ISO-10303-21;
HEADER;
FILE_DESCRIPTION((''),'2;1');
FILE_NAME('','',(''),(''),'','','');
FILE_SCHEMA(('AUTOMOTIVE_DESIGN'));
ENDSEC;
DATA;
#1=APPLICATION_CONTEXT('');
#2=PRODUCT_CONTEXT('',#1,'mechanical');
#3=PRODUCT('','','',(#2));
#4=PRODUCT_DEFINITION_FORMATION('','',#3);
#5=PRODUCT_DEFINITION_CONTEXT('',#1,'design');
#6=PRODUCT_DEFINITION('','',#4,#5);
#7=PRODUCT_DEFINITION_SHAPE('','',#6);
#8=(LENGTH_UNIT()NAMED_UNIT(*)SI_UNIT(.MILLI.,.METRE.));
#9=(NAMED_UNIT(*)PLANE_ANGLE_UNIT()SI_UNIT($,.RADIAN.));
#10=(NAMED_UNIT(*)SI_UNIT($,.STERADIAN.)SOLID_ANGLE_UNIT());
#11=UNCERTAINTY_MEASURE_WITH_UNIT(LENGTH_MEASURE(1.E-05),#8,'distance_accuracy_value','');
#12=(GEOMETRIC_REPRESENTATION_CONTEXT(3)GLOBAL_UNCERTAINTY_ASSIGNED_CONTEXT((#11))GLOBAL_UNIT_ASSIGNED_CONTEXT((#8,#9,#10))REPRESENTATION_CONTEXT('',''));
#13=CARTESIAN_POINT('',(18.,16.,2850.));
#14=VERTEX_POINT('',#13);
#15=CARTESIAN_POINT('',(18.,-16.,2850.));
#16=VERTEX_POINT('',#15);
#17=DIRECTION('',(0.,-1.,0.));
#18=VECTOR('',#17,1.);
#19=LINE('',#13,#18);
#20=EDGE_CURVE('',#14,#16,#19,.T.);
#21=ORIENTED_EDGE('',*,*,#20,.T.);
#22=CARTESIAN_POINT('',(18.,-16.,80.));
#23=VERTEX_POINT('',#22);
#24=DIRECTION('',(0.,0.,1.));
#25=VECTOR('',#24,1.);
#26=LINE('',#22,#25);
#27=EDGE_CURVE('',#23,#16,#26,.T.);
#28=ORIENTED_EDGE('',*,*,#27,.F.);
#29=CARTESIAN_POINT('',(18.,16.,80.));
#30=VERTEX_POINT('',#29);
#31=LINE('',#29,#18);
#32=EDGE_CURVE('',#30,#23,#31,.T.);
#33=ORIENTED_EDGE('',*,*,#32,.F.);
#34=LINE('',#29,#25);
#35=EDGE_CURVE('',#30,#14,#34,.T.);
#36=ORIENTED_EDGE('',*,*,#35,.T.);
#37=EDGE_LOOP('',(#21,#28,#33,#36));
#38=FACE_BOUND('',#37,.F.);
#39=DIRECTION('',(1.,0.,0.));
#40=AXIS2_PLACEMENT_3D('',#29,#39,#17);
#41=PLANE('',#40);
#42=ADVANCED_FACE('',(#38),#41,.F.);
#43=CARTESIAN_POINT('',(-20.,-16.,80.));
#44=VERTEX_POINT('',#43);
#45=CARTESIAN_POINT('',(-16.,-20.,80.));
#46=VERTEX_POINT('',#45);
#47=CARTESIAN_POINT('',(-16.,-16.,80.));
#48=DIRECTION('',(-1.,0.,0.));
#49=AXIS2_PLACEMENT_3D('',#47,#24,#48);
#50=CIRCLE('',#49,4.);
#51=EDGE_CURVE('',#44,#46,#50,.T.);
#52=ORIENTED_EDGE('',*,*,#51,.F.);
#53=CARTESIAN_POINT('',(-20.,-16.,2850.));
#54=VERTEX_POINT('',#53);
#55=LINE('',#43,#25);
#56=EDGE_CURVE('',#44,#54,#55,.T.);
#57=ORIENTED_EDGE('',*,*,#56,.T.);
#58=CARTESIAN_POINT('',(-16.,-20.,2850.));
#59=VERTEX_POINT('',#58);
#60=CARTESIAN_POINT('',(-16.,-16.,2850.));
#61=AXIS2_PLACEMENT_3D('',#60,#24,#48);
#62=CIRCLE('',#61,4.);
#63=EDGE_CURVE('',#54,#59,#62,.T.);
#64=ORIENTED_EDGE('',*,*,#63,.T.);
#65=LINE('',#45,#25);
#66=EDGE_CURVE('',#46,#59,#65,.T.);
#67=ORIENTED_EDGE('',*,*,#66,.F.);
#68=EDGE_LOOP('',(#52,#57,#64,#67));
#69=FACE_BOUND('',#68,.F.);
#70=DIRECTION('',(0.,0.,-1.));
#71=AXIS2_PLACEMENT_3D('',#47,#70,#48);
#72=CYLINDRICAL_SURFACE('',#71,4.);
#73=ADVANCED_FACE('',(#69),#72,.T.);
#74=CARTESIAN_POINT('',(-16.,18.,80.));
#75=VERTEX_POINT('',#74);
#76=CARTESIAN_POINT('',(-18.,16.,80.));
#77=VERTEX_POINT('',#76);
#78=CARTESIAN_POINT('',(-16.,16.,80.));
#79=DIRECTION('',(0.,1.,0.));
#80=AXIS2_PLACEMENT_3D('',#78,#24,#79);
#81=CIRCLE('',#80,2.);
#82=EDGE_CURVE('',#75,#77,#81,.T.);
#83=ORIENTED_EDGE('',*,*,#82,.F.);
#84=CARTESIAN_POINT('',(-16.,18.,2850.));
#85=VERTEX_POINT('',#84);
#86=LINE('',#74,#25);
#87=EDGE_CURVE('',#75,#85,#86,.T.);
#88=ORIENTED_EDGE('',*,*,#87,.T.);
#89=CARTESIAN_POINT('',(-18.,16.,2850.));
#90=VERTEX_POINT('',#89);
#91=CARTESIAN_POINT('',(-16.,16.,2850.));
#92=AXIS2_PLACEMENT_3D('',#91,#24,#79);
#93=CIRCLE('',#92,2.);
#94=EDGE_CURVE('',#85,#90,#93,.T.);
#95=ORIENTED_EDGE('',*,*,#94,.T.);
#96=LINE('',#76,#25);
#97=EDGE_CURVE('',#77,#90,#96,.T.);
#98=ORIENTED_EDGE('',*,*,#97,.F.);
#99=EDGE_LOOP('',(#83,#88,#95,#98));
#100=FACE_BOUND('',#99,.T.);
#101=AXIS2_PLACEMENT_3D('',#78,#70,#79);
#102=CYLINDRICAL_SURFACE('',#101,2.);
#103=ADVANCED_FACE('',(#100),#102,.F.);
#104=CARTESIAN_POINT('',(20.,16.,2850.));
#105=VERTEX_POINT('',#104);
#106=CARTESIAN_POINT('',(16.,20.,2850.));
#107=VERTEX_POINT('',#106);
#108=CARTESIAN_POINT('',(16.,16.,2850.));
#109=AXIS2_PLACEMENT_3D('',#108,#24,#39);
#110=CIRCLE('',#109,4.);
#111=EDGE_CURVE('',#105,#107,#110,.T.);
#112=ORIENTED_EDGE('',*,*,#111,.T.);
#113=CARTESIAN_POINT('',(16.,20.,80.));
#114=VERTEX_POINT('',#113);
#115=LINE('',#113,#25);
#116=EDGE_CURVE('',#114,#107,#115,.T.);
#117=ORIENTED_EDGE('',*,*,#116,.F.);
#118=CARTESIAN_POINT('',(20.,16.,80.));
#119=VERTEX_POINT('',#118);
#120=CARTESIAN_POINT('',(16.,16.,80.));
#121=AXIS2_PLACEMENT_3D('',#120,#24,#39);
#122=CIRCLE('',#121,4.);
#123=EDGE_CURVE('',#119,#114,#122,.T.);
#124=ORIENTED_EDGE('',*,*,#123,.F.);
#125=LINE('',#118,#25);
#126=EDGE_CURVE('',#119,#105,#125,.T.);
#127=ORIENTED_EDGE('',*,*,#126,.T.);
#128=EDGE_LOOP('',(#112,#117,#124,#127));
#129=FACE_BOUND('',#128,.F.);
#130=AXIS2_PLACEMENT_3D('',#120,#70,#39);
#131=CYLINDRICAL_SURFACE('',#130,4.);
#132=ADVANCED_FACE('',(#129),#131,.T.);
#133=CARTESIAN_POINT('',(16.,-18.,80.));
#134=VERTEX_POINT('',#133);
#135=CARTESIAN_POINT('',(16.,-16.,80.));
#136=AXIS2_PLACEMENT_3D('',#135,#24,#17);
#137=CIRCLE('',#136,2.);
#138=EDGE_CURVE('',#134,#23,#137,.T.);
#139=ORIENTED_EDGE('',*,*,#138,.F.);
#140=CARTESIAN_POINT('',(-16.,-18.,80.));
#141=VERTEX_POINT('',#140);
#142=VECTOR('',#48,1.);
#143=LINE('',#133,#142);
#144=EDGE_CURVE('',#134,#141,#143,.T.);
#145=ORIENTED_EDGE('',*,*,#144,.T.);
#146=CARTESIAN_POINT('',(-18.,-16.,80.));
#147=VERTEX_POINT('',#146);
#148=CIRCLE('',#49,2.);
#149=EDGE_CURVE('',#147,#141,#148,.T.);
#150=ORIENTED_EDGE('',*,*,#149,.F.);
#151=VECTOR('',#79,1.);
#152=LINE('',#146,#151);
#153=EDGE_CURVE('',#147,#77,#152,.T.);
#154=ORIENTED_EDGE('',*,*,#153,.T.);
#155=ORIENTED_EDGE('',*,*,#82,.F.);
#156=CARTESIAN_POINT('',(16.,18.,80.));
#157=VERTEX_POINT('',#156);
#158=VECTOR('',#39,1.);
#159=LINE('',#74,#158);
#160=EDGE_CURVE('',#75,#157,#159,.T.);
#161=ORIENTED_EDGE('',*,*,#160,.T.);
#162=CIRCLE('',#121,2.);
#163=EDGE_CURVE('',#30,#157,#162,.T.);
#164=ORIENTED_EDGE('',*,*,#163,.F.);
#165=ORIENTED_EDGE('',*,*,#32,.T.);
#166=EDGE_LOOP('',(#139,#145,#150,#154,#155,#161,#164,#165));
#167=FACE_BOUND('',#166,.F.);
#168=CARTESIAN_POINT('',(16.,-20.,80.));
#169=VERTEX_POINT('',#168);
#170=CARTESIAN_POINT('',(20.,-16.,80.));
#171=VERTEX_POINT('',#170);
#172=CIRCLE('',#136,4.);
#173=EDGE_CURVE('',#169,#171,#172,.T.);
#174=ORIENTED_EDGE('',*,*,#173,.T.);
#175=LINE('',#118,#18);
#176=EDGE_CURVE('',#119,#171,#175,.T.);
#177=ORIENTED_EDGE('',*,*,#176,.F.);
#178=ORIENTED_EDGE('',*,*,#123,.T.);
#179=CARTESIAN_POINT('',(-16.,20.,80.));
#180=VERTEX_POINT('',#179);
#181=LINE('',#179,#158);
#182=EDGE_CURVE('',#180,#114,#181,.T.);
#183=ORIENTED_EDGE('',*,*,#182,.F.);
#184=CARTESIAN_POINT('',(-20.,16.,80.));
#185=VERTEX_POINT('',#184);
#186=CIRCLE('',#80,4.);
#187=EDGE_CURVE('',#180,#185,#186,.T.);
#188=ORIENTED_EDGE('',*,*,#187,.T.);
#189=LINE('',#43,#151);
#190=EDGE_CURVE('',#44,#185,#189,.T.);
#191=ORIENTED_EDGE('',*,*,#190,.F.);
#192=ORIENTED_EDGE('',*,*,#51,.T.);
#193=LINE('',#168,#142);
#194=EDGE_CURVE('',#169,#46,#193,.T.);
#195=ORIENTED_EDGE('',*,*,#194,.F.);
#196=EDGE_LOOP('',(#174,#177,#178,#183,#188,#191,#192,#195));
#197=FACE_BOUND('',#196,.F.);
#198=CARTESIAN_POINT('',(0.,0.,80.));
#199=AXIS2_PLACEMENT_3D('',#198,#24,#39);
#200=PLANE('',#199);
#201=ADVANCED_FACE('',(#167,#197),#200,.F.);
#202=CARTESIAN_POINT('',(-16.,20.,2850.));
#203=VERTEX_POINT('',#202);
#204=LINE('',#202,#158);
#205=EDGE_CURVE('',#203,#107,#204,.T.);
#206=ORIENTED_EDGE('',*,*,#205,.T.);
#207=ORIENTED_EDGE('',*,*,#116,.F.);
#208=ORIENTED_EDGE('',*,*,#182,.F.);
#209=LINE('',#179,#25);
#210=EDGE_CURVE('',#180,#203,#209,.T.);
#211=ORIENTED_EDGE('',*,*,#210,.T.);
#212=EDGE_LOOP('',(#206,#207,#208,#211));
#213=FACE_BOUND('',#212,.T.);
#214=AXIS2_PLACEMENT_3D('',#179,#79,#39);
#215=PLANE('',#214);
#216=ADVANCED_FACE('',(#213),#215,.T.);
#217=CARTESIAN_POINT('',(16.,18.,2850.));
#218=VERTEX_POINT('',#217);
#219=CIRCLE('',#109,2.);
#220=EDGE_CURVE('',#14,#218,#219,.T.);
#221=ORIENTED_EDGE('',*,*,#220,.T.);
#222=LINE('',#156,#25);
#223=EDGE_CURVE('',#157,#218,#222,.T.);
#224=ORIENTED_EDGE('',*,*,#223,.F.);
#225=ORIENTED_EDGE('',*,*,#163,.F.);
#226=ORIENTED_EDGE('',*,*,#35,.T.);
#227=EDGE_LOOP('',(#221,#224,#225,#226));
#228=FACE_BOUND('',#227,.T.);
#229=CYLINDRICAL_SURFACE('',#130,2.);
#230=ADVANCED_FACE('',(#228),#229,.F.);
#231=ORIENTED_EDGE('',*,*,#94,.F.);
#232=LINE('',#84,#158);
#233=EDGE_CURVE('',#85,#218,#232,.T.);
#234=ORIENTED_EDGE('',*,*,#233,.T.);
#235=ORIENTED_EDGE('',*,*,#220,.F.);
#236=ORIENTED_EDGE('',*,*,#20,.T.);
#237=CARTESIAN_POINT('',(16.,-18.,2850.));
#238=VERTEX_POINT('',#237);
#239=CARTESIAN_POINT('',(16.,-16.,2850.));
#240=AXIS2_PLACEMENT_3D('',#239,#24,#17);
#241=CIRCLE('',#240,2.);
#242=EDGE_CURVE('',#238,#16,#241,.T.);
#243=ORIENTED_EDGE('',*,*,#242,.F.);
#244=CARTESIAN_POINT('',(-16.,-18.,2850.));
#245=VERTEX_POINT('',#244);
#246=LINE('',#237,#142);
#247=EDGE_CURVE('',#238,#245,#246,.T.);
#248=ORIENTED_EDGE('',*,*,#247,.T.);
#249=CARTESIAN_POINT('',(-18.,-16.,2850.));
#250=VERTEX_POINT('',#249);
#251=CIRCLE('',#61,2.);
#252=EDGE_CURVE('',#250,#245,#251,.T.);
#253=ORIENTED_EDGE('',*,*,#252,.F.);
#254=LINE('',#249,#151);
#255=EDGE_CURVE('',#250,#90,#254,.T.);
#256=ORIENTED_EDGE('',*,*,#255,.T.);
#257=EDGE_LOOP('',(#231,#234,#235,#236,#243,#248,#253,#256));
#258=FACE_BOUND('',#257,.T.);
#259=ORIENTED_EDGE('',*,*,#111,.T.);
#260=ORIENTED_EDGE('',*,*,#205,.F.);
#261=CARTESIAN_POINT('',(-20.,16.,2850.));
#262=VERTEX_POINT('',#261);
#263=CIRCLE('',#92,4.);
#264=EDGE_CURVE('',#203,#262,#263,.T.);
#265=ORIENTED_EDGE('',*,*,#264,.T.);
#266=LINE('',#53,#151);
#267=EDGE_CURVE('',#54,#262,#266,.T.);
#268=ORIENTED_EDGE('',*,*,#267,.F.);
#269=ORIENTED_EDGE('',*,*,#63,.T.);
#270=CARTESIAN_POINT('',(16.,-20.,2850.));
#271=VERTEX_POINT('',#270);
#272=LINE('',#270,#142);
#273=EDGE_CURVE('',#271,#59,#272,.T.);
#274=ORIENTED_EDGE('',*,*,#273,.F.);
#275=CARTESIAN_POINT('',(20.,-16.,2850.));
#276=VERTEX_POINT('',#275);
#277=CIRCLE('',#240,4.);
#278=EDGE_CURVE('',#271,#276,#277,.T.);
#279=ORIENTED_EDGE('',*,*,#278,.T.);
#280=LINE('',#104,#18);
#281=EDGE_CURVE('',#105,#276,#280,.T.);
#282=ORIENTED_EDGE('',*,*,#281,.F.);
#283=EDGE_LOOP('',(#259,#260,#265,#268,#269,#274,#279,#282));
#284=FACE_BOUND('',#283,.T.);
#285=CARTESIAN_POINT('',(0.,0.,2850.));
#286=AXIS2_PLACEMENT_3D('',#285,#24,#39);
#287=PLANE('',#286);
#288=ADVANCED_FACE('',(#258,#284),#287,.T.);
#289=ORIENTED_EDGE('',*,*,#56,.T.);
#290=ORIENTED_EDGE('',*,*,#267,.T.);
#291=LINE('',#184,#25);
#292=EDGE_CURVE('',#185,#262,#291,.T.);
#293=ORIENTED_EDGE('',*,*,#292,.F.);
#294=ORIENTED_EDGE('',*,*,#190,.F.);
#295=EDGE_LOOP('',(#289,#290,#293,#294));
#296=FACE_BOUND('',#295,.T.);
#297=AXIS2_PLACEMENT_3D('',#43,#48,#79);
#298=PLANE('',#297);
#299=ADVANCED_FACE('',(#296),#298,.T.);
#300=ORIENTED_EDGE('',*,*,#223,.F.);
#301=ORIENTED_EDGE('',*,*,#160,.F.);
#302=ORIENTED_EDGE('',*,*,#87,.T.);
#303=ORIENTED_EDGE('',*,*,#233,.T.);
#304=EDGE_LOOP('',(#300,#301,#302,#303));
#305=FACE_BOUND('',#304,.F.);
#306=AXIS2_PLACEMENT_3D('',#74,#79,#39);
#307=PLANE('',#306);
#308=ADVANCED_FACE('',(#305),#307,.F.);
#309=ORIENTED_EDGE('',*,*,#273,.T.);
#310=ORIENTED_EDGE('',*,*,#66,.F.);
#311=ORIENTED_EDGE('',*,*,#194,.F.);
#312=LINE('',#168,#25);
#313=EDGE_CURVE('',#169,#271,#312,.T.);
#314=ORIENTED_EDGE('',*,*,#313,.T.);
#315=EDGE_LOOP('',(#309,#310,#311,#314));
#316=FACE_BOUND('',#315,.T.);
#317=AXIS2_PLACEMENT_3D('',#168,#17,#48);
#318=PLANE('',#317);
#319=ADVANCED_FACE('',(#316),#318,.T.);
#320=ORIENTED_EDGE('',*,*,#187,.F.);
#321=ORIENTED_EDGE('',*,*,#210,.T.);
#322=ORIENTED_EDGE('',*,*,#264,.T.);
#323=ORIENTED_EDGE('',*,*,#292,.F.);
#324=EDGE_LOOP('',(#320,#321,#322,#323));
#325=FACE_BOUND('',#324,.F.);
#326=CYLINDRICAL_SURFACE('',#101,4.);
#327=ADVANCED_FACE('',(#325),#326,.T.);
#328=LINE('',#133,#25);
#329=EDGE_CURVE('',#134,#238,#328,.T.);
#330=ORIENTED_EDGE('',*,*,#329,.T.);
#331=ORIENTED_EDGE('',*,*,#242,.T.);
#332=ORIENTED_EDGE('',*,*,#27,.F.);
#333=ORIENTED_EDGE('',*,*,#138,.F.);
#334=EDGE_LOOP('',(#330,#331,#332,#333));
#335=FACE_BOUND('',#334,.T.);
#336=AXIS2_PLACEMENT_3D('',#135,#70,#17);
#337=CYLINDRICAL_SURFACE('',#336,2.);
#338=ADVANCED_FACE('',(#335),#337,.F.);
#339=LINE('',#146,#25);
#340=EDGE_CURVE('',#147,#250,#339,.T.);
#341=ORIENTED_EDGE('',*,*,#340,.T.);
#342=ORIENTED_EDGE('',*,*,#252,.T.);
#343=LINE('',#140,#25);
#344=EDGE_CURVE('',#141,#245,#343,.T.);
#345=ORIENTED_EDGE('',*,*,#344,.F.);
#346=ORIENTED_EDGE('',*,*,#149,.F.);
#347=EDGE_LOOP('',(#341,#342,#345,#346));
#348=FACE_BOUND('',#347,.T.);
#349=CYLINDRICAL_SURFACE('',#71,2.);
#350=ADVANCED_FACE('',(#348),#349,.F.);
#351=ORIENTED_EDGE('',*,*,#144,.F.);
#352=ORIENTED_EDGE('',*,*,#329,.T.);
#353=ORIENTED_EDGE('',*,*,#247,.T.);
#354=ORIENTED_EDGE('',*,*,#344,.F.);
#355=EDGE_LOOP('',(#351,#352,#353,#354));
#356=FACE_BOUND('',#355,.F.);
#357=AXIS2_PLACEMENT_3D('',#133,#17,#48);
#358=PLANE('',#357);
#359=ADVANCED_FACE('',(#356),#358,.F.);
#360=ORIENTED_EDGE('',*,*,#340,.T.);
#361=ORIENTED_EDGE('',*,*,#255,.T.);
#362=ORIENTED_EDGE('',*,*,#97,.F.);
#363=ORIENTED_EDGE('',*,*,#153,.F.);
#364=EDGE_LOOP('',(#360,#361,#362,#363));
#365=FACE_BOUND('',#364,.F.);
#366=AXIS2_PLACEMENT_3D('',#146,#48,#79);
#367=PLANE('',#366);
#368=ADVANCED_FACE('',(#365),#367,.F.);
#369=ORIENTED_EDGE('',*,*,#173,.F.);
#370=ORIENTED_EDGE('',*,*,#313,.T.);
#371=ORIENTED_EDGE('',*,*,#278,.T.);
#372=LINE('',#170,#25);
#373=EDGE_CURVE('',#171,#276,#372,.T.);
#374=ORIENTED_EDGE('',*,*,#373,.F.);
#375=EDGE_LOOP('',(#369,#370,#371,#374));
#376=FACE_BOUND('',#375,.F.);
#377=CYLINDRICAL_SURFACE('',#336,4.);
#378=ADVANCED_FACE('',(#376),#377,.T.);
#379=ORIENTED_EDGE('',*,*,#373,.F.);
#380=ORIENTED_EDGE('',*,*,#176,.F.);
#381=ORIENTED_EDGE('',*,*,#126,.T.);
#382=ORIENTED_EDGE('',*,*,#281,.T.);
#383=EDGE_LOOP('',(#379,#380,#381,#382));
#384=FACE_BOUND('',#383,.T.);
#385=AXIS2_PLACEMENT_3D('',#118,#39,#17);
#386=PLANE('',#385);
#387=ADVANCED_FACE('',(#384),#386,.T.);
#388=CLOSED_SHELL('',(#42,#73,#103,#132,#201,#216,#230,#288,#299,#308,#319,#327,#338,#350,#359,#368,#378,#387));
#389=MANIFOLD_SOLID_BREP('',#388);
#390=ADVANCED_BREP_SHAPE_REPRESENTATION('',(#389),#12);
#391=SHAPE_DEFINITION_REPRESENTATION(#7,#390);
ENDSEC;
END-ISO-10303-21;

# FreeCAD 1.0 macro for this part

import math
import FreeCAD as App
import Part
import Sketcher

V = App.Vector

doc = App.newDocument("Part")
body = doc.addObject("PartDesign::Body", "Body")

sketch1 = body.newObject("Sketcher::SketchObject", "Sketch")
sketch1.AttachmentSupport = (doc.getObject("XY_Plane"), [""])
sketch1.MapMode = "FlatFace"
sketch1.AttachmentOffset = App.Placement(V(0, 0, 80), App.Rotation())
sketch1.addGeometry([
    Part.LineSegment(V(-20, 16, 0), V(-20, -16, 0)),
    Part.ArcOfCircle(Part.Circle(V(-16, -16, 0), V(0, 0, 1), 4), math.radians(180), math.radians(270)),
    Part.LineSegment(V(-16, -20, 0), V(16, -20, 0)),
    Part.ArcOfCircle(Part.Circle(V(16, -16, 0), V(0, 0, 1), 4), math.radians(-90), math.radians(0)),
    Part.LineSegment(V(20, -16, 0), V(20, 16, 0)),
    Part.ArcOfCircle(Part.Circle(V(16, 16, 0), V(0, 0, 1), 4), math.radians(0), math.radians(90)),
    Part.LineSegment(V(16, 20, 0), V(-16, 20, 0)),
    Part.ArcOfCircle(Part.Circle(V(-16, 16, 0), V(0, 0, 1), 4), math.radians(90), math.radians(180)),
    Part.ArcOfCircle(Part.Circle(V(-16, 16, 0), V(0, 0, 1), 2), math.radians(90), math.radians(180)),
    Part.LineSegment(V(-16, 18, 0), V(16, 18, 0)),
    Part.ArcOfCircle(Part.Circle(V(16, 16, 0), V(0, 0, 1), 2), math.radians(0), math.radians(90)),
    Part.LineSegment(V(18, 16, 0), V(18, -16, 0)),
    Part.ArcOfCircle(Part.Circle(V(16, -16, 0), V(0, 0, 1), 2), math.radians(-90), math.radians(0)),
    Part.LineSegment(V(16, -18, 0), V(-16, -18, 0)),
    Part.ArcOfCircle(Part.Circle(V(-16, -16, 0), V(0, 0, 1), 2), math.radians(180), math.radians(270)),
    Part.LineSegment(V(-18, -16, 0), V(-18, 16, 0)),
], False)
sketch1.addConstraint([
    Sketcher.Constraint("Tangent", 0, 2, 1, 1),
    Sketcher.Constraint("Tangent", 1, 2, 2, 1),
    Sketcher.Constraint("Tangent", 2, 2, 3, 1),
    Sketcher.Constraint("Tangent", 3, 2, 4, 1),
    Sketcher.Constraint("Tangent", 4, 2, 5, 1),
    Sketcher.Constraint("Tangent", 5, 2, 6, 1),
    Sketcher.Constraint("Tangent", 6, 2, 7, 1),
    Sketcher.Constraint("Tangent", 7, 2, 0, 1),
    Sketcher.Constraint("Tangent", 8, 1, 9, 1),
    Sketcher.Constraint("Tangent", 9, 2, 10, 2),
    Sketcher.Constraint("Tangent", 10, 1, 11, 1),
    Sketcher.Constraint("Tangent", 11, 2, 12, 2),
    Sketcher.Constraint("Tangent", 12, 1, 13, 1),
    Sketcher.Constraint("Tangent", 13, 2, 14, 2),
    Sketcher.Constraint("Tangent", 14, 1, 15, 1),
    Sketcher.Constraint("Tangent", 15, 2, 8, 2),
    Sketcher.Constraint("Vertical", 0),
    Sketcher.Constraint("Horizontal", 2),
    Sketcher.Constraint("Vertical", 4),
    Sketcher.Constraint("Horizontal", 6),
    Sketcher.Constraint("Horizontal", 9),
    Sketcher.Constraint("Vertical", 11),
    Sketcher.Constraint("Horizontal", 13),
    Sketcher.Constraint("Vertical", 15),
    Sketcher.Constraint("Coincident", 8, 3, 7, 3),
    Sketcher.Constraint("Coincident", 10, 3, 5, 3),
    Sketcher.Constraint("Coincident", 12, 3, 3, 3),
    Sketcher.Constraint("Equal", 1, 3),
    Sketcher.Constraint("Equal", 3, 5),
    Sketcher.Constraint("Equal", 5, 7),
    Sketcher.Constraint("Equal", 12, 14),
    Sketcher.Constraint("Symmetric", 1, 3, 5, 3, -1, 1),
    Sketcher.Constraint("Equal", 13, 0),
    Sketcher.Constraint("Radius", 1, 4.0),
    Sketcher.Constraint("Radius", 8, 2.0),
    Sketcher.Constraint("DistanceX", 0, 2, -1, 1, 20.0),
])
pad1 = body.newObject("PartDesign::Pad", "Pad")
pad1.Profile = sketch1
pad1.Length = 2770

doc.recompute()
